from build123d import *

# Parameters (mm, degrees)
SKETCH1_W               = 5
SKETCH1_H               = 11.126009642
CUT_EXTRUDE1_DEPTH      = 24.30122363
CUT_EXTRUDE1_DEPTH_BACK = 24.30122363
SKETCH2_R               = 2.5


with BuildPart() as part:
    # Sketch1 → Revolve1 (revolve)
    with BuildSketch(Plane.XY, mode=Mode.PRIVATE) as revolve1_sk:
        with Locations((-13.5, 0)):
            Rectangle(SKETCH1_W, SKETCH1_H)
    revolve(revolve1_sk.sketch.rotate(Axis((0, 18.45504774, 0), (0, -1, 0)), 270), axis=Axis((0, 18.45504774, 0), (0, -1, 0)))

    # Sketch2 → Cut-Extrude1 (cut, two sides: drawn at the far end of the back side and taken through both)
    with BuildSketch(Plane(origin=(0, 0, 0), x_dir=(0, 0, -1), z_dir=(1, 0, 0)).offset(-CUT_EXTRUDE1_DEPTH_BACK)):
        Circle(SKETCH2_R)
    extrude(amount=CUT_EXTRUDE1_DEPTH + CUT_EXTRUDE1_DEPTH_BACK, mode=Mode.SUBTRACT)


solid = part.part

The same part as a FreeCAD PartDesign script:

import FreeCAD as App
import Part
import Sketcher

V = App.Vector

doc = App.newDocument("Part")
params = doc.addObject("Spreadsheet::Sheet", "Params")
for row, (alias, value) in enumerate([
    ("sketch1_width", "5 mm"),
    ("revolution_angle", "360 deg"),
    ("sketch2_diameter", "5 mm"),
], start=1):
    params.set(f"A{row}", alias)
    params.set(f"B{row}", "=" + value)
    params.setAlias(f"B{row}", alias)

body = doc.addObject("PartDesign::Body", "Body")

# Sketch on XY plane
sketch1 = body.newObject("Sketcher::SketchObject", "Sketch")
sketch1.AttachmentSupport = (doc.getObject("XY_Plane"), [""])
sketch1.MapMode = "FlatFace"
sketch1.addGeometry(Part.LineSegment(V(-16, 5.563005, 0), V(-16, -5.563005, 0)), False)
sketch1.addGeometry(Part.LineSegment(V(-16, -5.563005, 0), V(-11, -5.563005, 0)), False)
sketch1.addGeometry(Part.LineSegment(V(-11, -5.563005, 0), V(-11, 5.563005, 0)), False)
sketch1.addGeometry(Part.LineSegment(V(-11, 5.563005, 0), V(-16, 5.563005, 0)), False)
sketch1.addConstraint(Sketcher.Constraint("Coincident", 0, 2, 1, 1))
sketch1.addConstraint(Sketcher.Constraint("Coincident", 1, 2, 2, 1))
sketch1.addConstraint(Sketcher.Constraint("Coincident", 2, 2, 3, 1))
sketch1.addConstraint(Sketcher.Constraint("Coincident", 3, 2, 0, 1))
sketch1.addConstraint(Sketcher.Constraint("Vertical", 0))
sketch1.addConstraint(Sketcher.Constraint("Horizontal", 1))
sketch1.addConstraint(Sketcher.Constraint("Vertical", 2))
sketch1.addConstraint(Sketcher.Constraint("Horizontal", 3))
sketch1.addConstraint(Sketcher.Constraint("DistanceX", 1, 1, 1, 2, 5.0))
sketch1.addConstraint(Sketcher.Constraint("DistanceX", 0, 2, -1, 1, 16.0))
sketch1.addConstraint(Sketcher.Constraint("DistanceY", 0, 2, 0, 1, 11.12601))
sketch1.addConstraint(Sketcher.Constraint("DistanceY", 0, 2, -1, 1, 5.563005))
sketch1.setExpression("Constraints[8]", "Params.sketch1_width")
revolution = body.newObject("PartDesign::Revolution", "Revolution")
revolution.Profile = sketch1
revolution.ReferenceAxis = (sketch1, ["V_Axis"])
revolution.setExpression("Angle", "Params.revolution_angle")

# Sketch on YZ plane
sketch2 = body.newObject("Sketcher::SketchObject", "Sketch001")
sketch2.AttachmentSupport = (doc.getObject("YZ_Plane"), [""])
sketch2.MapMode = "FlatFace"
sketch2.addGeometry(Part.Circle(V(0, 0, 0), V(0, 0, 1), 2.5), False)
sketch2.addConstraint(Sketcher.Constraint("Coincident", 0, 3, -1, 1))
sketch2.addConstraint(Sketcher.Constraint("Diameter", 0, 5.0))
sketch2.setExpression("Constraints[1]", "Params.sketch2_diameter")
pocket1 = body.newObject("PartDesign::Pocket", "Pocket")
pocket1.Profile = sketch2
pocket1.Type = "ThroughAll"
pocket1.Midplane = True

doc.recompute()
